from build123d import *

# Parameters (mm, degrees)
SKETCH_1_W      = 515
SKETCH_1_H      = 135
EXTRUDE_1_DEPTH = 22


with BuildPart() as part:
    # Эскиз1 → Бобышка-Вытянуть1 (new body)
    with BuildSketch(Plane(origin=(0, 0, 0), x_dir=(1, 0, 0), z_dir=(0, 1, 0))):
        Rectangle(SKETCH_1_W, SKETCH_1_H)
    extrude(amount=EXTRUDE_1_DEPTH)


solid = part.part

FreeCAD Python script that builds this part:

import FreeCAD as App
import Part
import Sketcher
from FreeCAD import Vector
Q = App.Units.Quantity


def add_polygon(sketch, points):
    """Adds a closed chain of lines whose ends are joined by coincident constraints."""
    first, n = sketch.GeometryCount, len(points)
    for a, b in zip(points, points[1:] + points[:1]):
        sketch.addGeometry(Part.LineSegment(App.Vector(*a, 0), App.Vector(*b, 0)), False)
    for i in range(n):
        sketch.addConstraint(Sketcher.Constraint("Coincident", first + i, 2, first + (i + 1) % n, 1))

doc = App.newDocument("Part")
body = doc.addObject("PartDesign::Body", "Body")

sketch1 = body.newObject("Sketcher::SketchObject", "Sketch")
sketch1.AttachmentSupport = (doc.getObject("XZ_Plane"), [""])
sketch1.MapMode = "FlatFace"
add_polygon(sketch1, [(-257.5, -67.5), (-257.5, 67.5), (257.5, 67.5), (257.5, -67.5)])
sketch1.addConstraint(Sketcher.Constraint("Vertical", 0))
sketch1.addConstraint(Sketcher.Constraint("Horizontal", 1))
sketch1.addConstraint(Sketcher.Constraint("Vertical", 2))
sketch1.addConstraint(Sketcher.Constraint("Horizontal", 3))
sketch1.addConstraint(Sketcher.Constraint("Symmetric", 0, 2, 2, 2, -1, 1))
sketch1.addConstraint(Sketcher.Constraint("DistanceX", 1, 1, 1, 2, Q("515 mm")))
sketch1.addConstraint(Sketcher.Constraint("DistanceY", 0, 1, 0, 2, Q("135 mm")))
pad1 = body.newObject("PartDesign::Pad", "Pad")
pad1.Profile = sketch1
pad1.Length = 22
pad1.Reversed = True

doc.recompute()
